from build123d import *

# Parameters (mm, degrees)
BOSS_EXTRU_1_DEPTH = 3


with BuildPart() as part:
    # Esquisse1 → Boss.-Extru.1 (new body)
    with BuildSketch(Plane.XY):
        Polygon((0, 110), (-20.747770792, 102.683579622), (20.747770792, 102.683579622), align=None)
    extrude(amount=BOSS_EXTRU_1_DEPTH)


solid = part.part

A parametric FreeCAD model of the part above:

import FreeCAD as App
import Part
import Sketcher
Q = App.Units.Quantity

doc = App.newDocument("Part")
body = doc.addObject("PartDesign::Body", "Body")

sketch1 = doc.addObject("Sketcher::SketchObject", "Sketch")
body.addObject(sketch1)
sketch1.AttachmentSupport = (doc.XY_Plane, [""])
sketch1.MapMode = "FlatFace"
sketch1.addGeometry(Part.LineSegment(App.Vector(0, 110, 0), App.Vector(-20.747771, 102.68358, 0)), False)
sketch1.addGeometry(Part.LineSegment(App.Vector(-20.747771, 102.68358, 0), App.Vector(20.747771, 102.68358, 0)), False)
sketch1.addGeometry(Part.LineSegment(App.Vector(20.747771, 102.68358, 0), App.Vector(0, 110, 0)), False)
sketch1.addConstraint(Sketcher.Constraint("Coincident", 0, 2, 1, 1))
sketch1.addConstraint(Sketcher.Constraint("Coincident", 1, 2, 2, 1))
sketch1.addConstraint(Sketcher.Constraint("Coincident", 2, 2, 0, 1))
sketch1.addConstraint(Sketcher.Constraint("Horizontal", 1))
sketch1.addConstraint(Sketcher.Constraint("PointOnObject", 2, 2, -2))
sketch1.addConstraint(Sketcher.Constraint("Equal", 0, 2))
sketch1.addConstraint(Sketcher.Constraint("Distance", 0, Q("22 mm")))
sketch1.addConstraint(Sketcher.Constraint("DistanceY", -1, 1, 2, 2, Q("110 mm")))
sketch1.addConstraint(Sketcher.Constraint("DistanceX", 1, 1, 1, 2, Q("41.495542 mm")))
pad1 = doc.addObject("PartDesign::Pad", "Pad")
body.addObject(pad1)
pad1.Profile = sketch1
pad1.Length = 3

doc.recompute()
